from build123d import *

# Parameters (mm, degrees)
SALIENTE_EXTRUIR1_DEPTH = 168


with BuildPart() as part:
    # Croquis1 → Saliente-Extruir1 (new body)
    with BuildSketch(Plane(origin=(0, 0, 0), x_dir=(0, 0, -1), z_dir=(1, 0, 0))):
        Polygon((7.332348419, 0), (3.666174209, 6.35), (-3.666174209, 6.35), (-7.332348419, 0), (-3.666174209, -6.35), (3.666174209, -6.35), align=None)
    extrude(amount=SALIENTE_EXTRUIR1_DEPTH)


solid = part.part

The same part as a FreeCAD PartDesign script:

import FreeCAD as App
import Part
import Sketcher
Q = App.Units.Quantity

doc = App.newDocument("Part")
body = doc.addObject("PartDesign::Body", "Body")

sketch1 = body.newObject("Sketcher::SketchObject", "Sketch")
sketch1.AttachmentSupport = (doc.getObject("YZ_Plane"), [""])
sketch1.MapMode = "FlatFace"
sketch1.addGeometry([
    Part.LineSegment(App.Vector(0, -7.332348, 0), App.Vector(6.35, -3.666174, 0)),
    Part.LineSegment(App.Vector(6.35, -3.666174, 0), App.Vector(6.35, 3.666174, 0)),
    Part.LineSegment(App.Vector(6.35, 3.666174, 0), App.Vector(0, 7.332348, 0)),
    Part.LineSegment(App.Vector(0, 7.332348, 0), App.Vector(-6.35, 3.666174, 0)),
    Part.LineSegment(App.Vector(-6.35, 3.666174, 0), App.Vector(-6.35, -3.666174, 0)),
    Part.LineSegment(App.Vector(-6.35, -3.666174, 0), App.Vector(0, -7.332348, 0)),
], False)
sketch1.addConstraint([
    Sketcher.Constraint("Coincident", 0, 2, 1, 1),
    Sketcher.Constraint("Coincident", 1, 2, 2, 1),
    Sketcher.Constraint("Coincident", 2, 2, 3, 1),
    Sketcher.Constraint("Coincident", 3, 2, 4, 1),
    Sketcher.Constraint("Coincident", 4, 2, 5, 1),
    Sketcher.Constraint("Coincident", 5, 2, 0, 1),
    Sketcher.Constraint("Vertical", 1),
    Sketcher.Constraint("Vertical", 4),
    Sketcher.Constraint("Symmetric", 0, 2, 3, 2, -1, 1),
    Sketcher.Constraint("Symmetric", 2, 2, 5, 2, -1, 1),
    Sketcher.Constraint("PointOnObject", 2, 2, -2),
    Sketcher.Constraint("Parallel", 2, 5),
    Sketcher.Constraint("Horizontal", 1, 2, 3, 2),
    Sketcher.Constraint("Angle", 0, Q("30 deg")),
    Sketcher.Constraint("DistanceX", 3, 2, 1, 2, Q("12.7 mm")),
    Sketcher.Constraint("DistanceY", 1, 1, 1, 2, Q("7.332348 mm")),
])
pad1 = body.newObject("PartDesign::Pad", "Pad")
pad1.Profile = sketch1
pad1.Length = 168

doc.recompute()
